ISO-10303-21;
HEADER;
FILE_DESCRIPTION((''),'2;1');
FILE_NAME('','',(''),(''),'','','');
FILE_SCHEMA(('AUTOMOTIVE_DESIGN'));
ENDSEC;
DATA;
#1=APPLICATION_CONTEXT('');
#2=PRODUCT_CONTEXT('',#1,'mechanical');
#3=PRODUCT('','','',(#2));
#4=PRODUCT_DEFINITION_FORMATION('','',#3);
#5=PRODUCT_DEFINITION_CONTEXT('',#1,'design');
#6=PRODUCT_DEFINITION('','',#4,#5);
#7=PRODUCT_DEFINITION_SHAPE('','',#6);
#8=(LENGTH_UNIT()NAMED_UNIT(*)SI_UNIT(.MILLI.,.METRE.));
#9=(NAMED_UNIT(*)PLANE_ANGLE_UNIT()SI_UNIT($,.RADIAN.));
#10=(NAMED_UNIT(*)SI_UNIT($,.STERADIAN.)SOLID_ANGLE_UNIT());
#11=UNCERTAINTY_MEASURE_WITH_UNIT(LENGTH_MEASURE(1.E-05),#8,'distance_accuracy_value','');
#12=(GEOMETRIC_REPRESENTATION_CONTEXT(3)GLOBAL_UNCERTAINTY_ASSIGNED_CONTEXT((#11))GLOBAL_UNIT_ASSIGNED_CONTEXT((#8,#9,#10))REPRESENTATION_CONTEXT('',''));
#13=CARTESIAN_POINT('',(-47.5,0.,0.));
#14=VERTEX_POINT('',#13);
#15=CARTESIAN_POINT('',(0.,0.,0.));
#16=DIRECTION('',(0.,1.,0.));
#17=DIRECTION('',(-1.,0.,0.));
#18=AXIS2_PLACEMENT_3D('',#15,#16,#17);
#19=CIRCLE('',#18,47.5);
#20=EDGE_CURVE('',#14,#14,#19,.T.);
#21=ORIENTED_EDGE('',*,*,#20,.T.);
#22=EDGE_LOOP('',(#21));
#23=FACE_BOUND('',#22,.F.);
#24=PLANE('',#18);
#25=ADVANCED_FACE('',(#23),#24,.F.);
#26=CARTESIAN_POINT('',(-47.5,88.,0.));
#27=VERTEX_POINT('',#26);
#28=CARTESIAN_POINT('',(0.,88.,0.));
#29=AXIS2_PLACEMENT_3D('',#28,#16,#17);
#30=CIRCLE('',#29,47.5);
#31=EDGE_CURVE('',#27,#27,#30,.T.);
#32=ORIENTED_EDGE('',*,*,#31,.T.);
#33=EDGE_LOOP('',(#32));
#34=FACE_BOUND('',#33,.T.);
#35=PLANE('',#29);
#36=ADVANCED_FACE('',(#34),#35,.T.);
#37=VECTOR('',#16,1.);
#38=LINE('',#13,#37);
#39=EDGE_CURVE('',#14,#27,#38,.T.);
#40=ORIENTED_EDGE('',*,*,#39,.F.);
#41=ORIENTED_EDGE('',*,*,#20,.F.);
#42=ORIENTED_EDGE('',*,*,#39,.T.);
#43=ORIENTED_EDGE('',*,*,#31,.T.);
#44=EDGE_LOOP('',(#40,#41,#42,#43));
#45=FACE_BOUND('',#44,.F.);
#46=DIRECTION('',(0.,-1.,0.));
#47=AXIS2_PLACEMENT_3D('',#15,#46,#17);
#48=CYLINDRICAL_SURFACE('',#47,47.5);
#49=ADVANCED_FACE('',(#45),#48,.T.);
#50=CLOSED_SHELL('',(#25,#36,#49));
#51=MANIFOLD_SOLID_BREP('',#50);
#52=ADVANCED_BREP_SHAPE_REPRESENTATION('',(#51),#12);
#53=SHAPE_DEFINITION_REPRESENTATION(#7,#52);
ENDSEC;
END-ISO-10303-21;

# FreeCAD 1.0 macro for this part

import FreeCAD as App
import Part
import Sketcher
Q = App.Units.Quantity

doc = App.newDocument("Part")
body = doc.addObject("PartDesign::Body", "Body")

# Sketch on XZ plane
sketch1 = body.newObject("Sketcher::SketchObject", "Sketch")
sketch1.AttachmentSupport = (doc.getObject("XZ_Plane"), [""])
sketch1.MapMode = "FlatFace"
sketch1.addGeometry(Part.Circle(App.Vector(0, 0, 0), App.Vector(0, 0, 1), 47.5), False)
sketch1.addConstraint([
    Sketcher.Constraint("Coincident", 0, 3, -1, 1),
    Sketcher.Constraint("Diameter", 0, Q("95 mm")),
])
pad1 = body.newObject("PartDesign::Pad", "Pad")
pad1.Profile = sketch1
pad1.Length = 88
pad1.Reversed = True

doc.recompute()
